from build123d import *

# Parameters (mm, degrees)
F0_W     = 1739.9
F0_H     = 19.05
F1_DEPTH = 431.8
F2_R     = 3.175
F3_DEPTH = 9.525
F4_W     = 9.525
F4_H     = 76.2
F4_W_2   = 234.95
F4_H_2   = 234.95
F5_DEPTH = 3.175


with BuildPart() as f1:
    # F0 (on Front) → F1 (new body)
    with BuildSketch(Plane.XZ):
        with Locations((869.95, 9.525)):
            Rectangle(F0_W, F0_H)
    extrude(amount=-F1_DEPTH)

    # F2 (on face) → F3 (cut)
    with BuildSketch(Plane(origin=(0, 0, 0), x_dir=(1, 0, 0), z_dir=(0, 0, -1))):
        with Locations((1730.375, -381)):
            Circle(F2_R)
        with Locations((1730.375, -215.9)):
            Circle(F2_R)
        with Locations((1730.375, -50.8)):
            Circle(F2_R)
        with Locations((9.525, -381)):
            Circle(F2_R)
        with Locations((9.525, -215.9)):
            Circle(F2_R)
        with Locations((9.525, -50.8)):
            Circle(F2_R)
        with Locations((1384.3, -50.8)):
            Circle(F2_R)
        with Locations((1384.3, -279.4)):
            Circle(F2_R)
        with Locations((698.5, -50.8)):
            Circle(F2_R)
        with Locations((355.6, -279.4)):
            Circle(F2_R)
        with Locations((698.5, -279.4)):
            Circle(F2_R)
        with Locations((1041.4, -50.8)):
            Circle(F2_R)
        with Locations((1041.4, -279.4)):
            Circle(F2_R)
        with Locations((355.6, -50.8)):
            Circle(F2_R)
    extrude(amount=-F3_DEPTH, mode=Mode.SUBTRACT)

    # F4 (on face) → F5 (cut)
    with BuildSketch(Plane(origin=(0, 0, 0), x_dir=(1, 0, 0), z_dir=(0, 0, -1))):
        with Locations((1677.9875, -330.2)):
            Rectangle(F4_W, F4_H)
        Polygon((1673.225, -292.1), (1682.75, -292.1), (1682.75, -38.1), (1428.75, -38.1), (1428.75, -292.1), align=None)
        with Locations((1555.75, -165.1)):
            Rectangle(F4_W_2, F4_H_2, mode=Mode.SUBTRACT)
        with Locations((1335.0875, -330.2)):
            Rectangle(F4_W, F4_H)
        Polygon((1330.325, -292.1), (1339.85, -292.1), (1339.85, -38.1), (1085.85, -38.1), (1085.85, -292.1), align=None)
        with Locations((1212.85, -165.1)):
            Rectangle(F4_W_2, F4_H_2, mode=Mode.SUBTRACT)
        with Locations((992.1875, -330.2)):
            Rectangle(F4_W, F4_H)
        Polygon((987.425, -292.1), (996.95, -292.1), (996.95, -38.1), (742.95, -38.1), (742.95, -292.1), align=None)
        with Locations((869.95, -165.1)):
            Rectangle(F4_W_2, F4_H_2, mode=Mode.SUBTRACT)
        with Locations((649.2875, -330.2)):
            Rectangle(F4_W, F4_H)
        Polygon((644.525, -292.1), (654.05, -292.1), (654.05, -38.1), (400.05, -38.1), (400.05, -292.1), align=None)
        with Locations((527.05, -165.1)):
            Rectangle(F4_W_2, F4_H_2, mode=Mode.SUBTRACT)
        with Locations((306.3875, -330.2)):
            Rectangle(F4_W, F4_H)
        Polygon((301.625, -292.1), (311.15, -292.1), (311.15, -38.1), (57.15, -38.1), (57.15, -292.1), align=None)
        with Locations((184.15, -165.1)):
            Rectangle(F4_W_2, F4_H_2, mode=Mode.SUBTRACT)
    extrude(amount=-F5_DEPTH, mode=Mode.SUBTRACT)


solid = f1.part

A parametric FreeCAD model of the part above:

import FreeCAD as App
import Part
import Sketcher
Q = App.Units.Quantity


def add_polygon(sketch, points):
    """Adds a closed chain of lines whose ends are joined by coincident constraints."""
    first, n = sketch.GeometryCount, len(points)
    for a, b in zip(points, points[1:] + points[:1]):
        sketch.addGeometry(Part.LineSegment(App.Vector(*a, 0), App.Vector(*b, 0)), False)
    for i in range(n):
        sketch.addConstraint(Sketcher.Constraint("Coincident", first + i, 2, first + (i + 1) % n, 1))

doc = App.newDocument("Part")
body = doc.addObject("PartDesign::Body", "Body")

# Sketch on XZ plane
sketch1 = body.newObject("Sketcher::SketchObject", "Sketch")
sketch1.AttachmentSupport = (doc.getObject("XZ_Plane"), [""])
sketch1.MapMode = "FlatFace"
add_polygon(sketch1, [(0, 19), (0, 0), (1740, 0), (1740, 19)])  # lines 0-3
sketch1.addConstraint([
    Sketcher.Constraint("Vertical", 0),
    Sketcher.Constraint("Horizontal", 1),
    Sketcher.Constraint("Vertical", 2),
    Sketcher.Constraint("Horizontal", 3),
    Sketcher.Constraint("Coincident", 0, 2, -1, 1),
    Sketcher.Constraint("DistanceX", 1, 1, 1, 2, Q("68.5 in")),
    Sketcher.Constraint("DistanceY", 0, 2, 0, 1, Q("0.75 in")),
])
pad1 = body.newObject("PartDesign::Pad", "Pad")
pad1.Profile = sketch1
pad1.Length = Q("17 in")
pad1.Reversed = True

# Sketch on XY plane
sketch2 = body.newObject("Sketcher::SketchObject", "Sketch001")
sketch2.AttachmentSupport = (doc.getObject("XY_Plane"), [""])
sketch2.MapMode = "FlatFace"
sketch2.addGeometry([
    Part.Circle(App.Vector(1730.4, 381, 0), App.Vector(0, 0, 1), 3.2),  # 0
    Part.Circle(App.Vector(1730.4, 215.9, 0), App.Vector(0, 0, 1), 3.2),  # 1
    Part.Circle(App.Vector(1730.4, 50.8, 0), App.Vector(0, 0, 1), 3.2),  # 2
    Part.Circle(App.Vector(9.5, 381, 0), App.Vector(0, 0, 1), 3.2),  # 3
    Part.Circle(App.Vector(9.5, 215.9, 0), App.Vector(0, 0, 1), 3.2),  # 4
    Part.Circle(App.Vector(9.5, 50.8, 0), App.Vector(0, 0, 1), 3.2),  # 5
    Part.Circle(App.Vector(1384.3, 50.8, 0), App.Vector(0, 0, 1), 3.2),  # 6
    Part.Circle(App.Vector(1384.3, 279.4, 0), App.Vector(0, 0, 1), 3.2),  # 7
    Part.Circle(App.Vector(698.5, 50.8, 0), App.Vector(0, 0, 1), 3.2),  # 8
    Part.Circle(App.Vector(355.6, 279.4, 0), App.Vector(0, 0, 1), 3.2),  # 9
    Part.Circle(App.Vector(698.5, 279.4, 0), App.Vector(0, 0, 1), 3.2),  # 10
    Part.Circle(App.Vector(1041.4, 50.8, 0), App.Vector(0, 0, 1), 3.2),  # 11
    Part.Circle(App.Vector(1041.4, 279.4, 0), App.Vector(0, 0, 1), 3.2),  # 12
    Part.Circle(App.Vector(355.6, 50.8, 0), App.Vector(0, 0, 1), 3.2),  # 13
], False)
sketch2.addConstraint([
    Sketcher.Constraint("Equal", 0, 1),
    Sketcher.Constraint("Equal", 1, 2),
    Sketcher.Constraint("Equal", 2, 3),
    Sketcher.Constraint("Equal", 3, 4),
    Sketcher.Constraint("Equal", 4, 5),
    Sketcher.Constraint("Equal", 5, 6),
    Sketcher.Constraint("Equal", 6, 7),
    Sketcher.Constraint("Equal", 7, 8),
    Sketcher.Constraint("Equal", 8, 9),
    Sketcher.Constraint("Equal", 9, 10),
    Sketcher.Constraint("Equal", 10, 11),
    Sketcher.Constraint("Equal", 11, 12),
    Sketcher.Constraint("Equal", 12, 13),
    Sketcher.Constraint("Horizontal", 0, 3, 3, 3),
    Sketcher.Constraint("Horizontal", 1, 3, 4, 3),
    Sketcher.Constraint("Horizontal", 2, 3, 5, 3),
    Sketcher.Constraint("Horizontal", 5, 3, 6, 3),
    Sketcher.Constraint("Horizontal", 6, 3, 8, 3),
    Sketcher.Constraint("Horizontal", 7, 3, 9, 3),
    Sketcher.Constraint("Horizontal", 9, 3, 10, 3),
    Sketcher.Constraint("Horizontal", 8, 3, 11, 3),
    Sketcher.Constraint("Horizontal", 10, 3, 12, 3),
    Sketcher.Constraint("Horizontal", 11, 3, 13, 3),
    Sketcher.Constraint("Vertical", 0, 3, 1, 3),
    Sketcher.Constraint("Vertical", 1, 3, 2, 3),
    Sketcher.Constraint("Vertical", 3, 3, 4, 3),
    Sketcher.Constraint("Vertical", 4, 3, 5, 3),
    Sketcher.Constraint("Vertical", 6, 3, 7, 3),
    Sketcher.Constraint("Vertical", 8, 3, 10, 3),
    Sketcher.Constraint("Vertical", 11, 3, 12, 3),
    Sketcher.Constraint("Vertical", 9, 3, 13, 3),
    Sketcher.Constraint("Diameter", 0, Q("0.25 in")),
    Sketcher.Constraint("DistanceY", -1, 1, 0, 3, Q("15 in")),
    Sketcher.Constraint("DistanceY", -1, 1, 2, 3, Q("2 in")),
    Sketcher.Constraint("DistanceY", -1, 1, 7, 3, Q("11 in")),
    Sketcher.Constraint("DistanceX", -1, 1, 9, 3, Q("14 in")),
    Sketcher.Constraint("DistanceX", -1, 1, 11, 3, Q("41 in")),
    Sketcher.Constraint("DistanceX", 8, 3, 6, 3, Q("27 in")),
    Sketcher.Constraint("DistanceY", -1, 1, 1, 3, Q("8.5 in")),
    Sketcher.Constraint("DistanceX", -1, 1, 6, 3, Q("54.5 in")),
    Sketcher.Constraint("DistanceX", 3, 3, 0, 3, Q("67.75 in")),
    Sketcher.Constraint("DistanceX", -1, 1, 0, 3, Q("68.125 in")),
])
pocket1 = body.newObject("PartDesign::Pocket", "Pocket")
pocket1.Profile = sketch2
pocket1.Length = Q("0.375 in")
pocket1.Reversed = True

# Sketch on XY plane
sketch3 = body.newObject("Sketcher::SketchObject", "Sketch002")
sketch3.AttachmentSupport = (doc.getObject("XY_Plane"), [""])
sketch3.MapMode = "FlatFace"
add_polygon(sketch3, [(1673, 292), (1673, 368), (1683, 368), (1683, 38), (1429, 38), (1429, 292)])  # lines 0-5
add_polygon(sketch3, [(1673, 283), (1438, 283), (1438, 48), (1673, 48)])  # lines 6-9
add_polygon(sketch3, [(1330, 292), (1330, 368), (1340, 368), (1340, 38), (1086, 38), (1086, 292)])  # lines 10-15
add_polygon(sketch3, [(1330, 283), (1095, 283), (1095, 48), (1330, 48)])  # lines 16-19
add_polygon(sketch3, [(987, 292), (987, 368), (997, 368), (997, 38), (743, 38), (743, 292)])  # lines 20-25
add_polygon(sketch3, [(987, 283), (752, 283), (752, 48), (987, 48)])  # lines 26-29
add_polygon(sketch3, [(645, 292), (645, 368), (654, 368), (654, 38), (400, 38), (400, 292)])  # lines 30-35
add_polygon(sketch3, [(645, 283), (410, 283), (410, 48), (645, 48)])  # lines 36-39
add_polygon(sketch3, [(302, 292), (302, 368), (311, 368), (311, 38), (57, 38), (57, 292)])  # lines 40-45
add_polygon(sketch3, [(302, 283), (67, 283), (67, 48), (302, 48)])  # lines 46-49
sketch3.addConstraint([
    Sketcher.Constraint("Vertical", 0),
    Sketcher.Constraint("Horizontal", 1),
    Sketcher.Constraint("Vertical", 2),
    Sketcher.Constraint("Horizontal", 3),
    Sketcher.Constraint("Vertical", 4),
    Sketcher.Constraint("Horizontal", 5),
    Sketcher.Constraint("Horizontal", 6),
    Sketcher.Constraint("Vertical", 7),
    Sketcher.Constraint("Horizontal", 8),
    Sketcher.Constraint("Vertical", 9),
    Sketcher.Constraint("Vertical", 10),
    Sketcher.Constraint("Horizontal", 11),
    Sketcher.Constraint("Vertical", 12),
    Sketcher.Constraint("Horizontal", 13),
    Sketcher.Constraint("Vertical", 14),
    Sketcher.Constraint("Horizontal", 15),
    Sketcher.Constraint("Horizontal", 16),
    Sketcher.Constraint("Vertical", 17),
    Sketcher.Constraint("Horizontal", 18),
    Sketcher.Constraint("Vertical", 19),
    Sketcher.Constraint("Vertical", 20),
    Sketcher.Constraint("Horizontal", 21),
    Sketcher.Constraint("Vertical", 22),
    Sketcher.Constraint("Horizontal", 23),
    Sketcher.Constraint("Vertical", 24),
    Sketcher.Constraint("Horizontal", 25),
    Sketcher.Constraint("Horizontal", 26),
    Sketcher.Constraint("Vertical", 27),
    Sketcher.Constraint("Horizontal", 28),
    Sketcher.Constraint("Vertical", 29),
    Sketcher.Constraint("Vertical", 30),
    Sketcher.Constraint("Horizontal", 31),
    Sketcher.Constraint("Vertical", 32),
    Sketcher.Constraint("Horizontal", 33),
    Sketcher.Constraint("Vertical", 34),
    Sketcher.Constraint("Horizontal", 35),
    Sketcher.Constraint("Horizontal", 36),
    Sketcher.Constraint("Vertical", 37),
    Sketcher.Constraint("Horizontal", 38),
    Sketcher.Constraint("Vertical", 39),
    Sketcher.Constraint("Vertical", 40),
    Sketcher.Constraint("Horizontal", 41),
    Sketcher.Constraint("Vertical", 42),
    Sketcher.Constraint("Horizontal", 43),
    Sketcher.Constraint("Vertical", 44),
    Sketcher.Constraint("Horizontal", 45),
    Sketcher.Constraint("Horizontal", 46),
    Sketcher.Constraint("Vertical", 47),
    Sketcher.Constraint("Horizontal", 48),
    Sketcher.Constraint("Vertical", 49),
    Sketcher.Constraint("Horizontal", 1, 2, 10, 2),
    Sketcher.Constraint("Horizontal", 3, 2, 12, 2),
    Sketcher.Constraint("Horizontal", 5, 2, 14, 2),
    Sketcher.Constraint("Horizontal", 9, 2, 16, 2),
    Sketcher.Constraint("Horizontal", 8, 2, 17, 2),
    Sketcher.Constraint("Horizontal", 11, 2, 20, 2),
    Sketcher.Constraint("Horizontal", 13, 2, 22, 2),
    Sketcher.Constraint("Horizontal", 15, 2, 24, 2),
    Sketcher.Constraint("Horizontal", 19, 2, 26, 2),
    Sketcher.Constraint("Horizontal", 18, 2, 27, 2),
    Sketcher.Constraint("Horizontal", 21, 2, 30, 2),
    Sketcher.Constraint("Horizontal", 23, 2, 32, 2),
    Sketcher.Constraint("Horizontal", 25, 2, 34, 2),
    Sketcher.Constraint("Horizontal", 29, 2, 36, 2),
    Sketcher.Constraint("Horizontal", 28, 2, 37, 2),
    Sketcher.Constraint("Horizontal", 31, 2, 40, 2),
    Sketcher.Constraint("Horizontal", 33, 2, 42, 2),
    Sketcher.Constraint("Horizontal", 35, 2, 44, 2),
    Sketcher.Constraint("Horizontal", 39, 2, 46, 2),
    Sketcher.Constraint("Horizontal", 38, 2, 47, 2),
    Sketcher.Constraint("Vertical", 5, 2, 8, 2),
    Sketcher.Constraint("Vertical", 15, 2, 18, 2),
    Sketcher.Constraint("Vertical", 25, 2, 28, 2),
    Sketcher.Constraint("Vertical", 35, 2, 38, 2),
    Sketcher.Constraint("Vertical", 45, 2, 48, 2),
    Sketcher.Constraint("Equal", 1, 11),
    Sketcher.Constraint("Equal", 3, 13),
    Sketcher.Constraint("Equal", 8, 16),
    Sketcher.Constraint("Equal", 11, 21),
    Sketcher.Constraint("Equal", 13, 23),
    Sketcher.Constraint("Equal", 18, 26),
    Sketcher.Constraint("Equal", 21, 31),
    Sketcher.Constraint("Equal", 23, 33),
    Sketcher.Constraint("Equal", 28, 36),
    Sketcher.Constraint("Equal", 31, 41),
    Sketcher.Constraint("Equal", 33, 43),
    Sketcher.Constraint("Equal", 38, 46),
    Sketcher.Constraint("Equal", 43, 4),
    Sketcher.Constraint("Equal", 48, 7),
    Sketcher.Constraint("DistanceX", 3, 2, 3, 1, Q("10 in")),
    Sketcher.Constraint("DistanceY", 0, 1, 0, 2, Q("3 in")),
    Sketcher.Constraint("DistanceX", 6, 2, 6, 1, Q("9.25 in")),
    Sketcher.Constraint("DistanceY", -1, 1, 0, 2, Q("14.5 in")),
    Sketcher.Constraint("DistanceX", 10, 2, 0, 2, Q("13.5 in")),
    Sketcher.Constraint("DistanceX", 20, 2, 10, 2, Q("13.5 in")),
    Sketcher.Constraint("DistanceX", 30, 2, 20, 2, Q("13.5 in")),
    Sketcher.Constraint("DistanceX", 40, 2, 30, 2, Q("13.5 in")),
    Sketcher.Constraint("DistanceX", 1, 1, 1, 2, Q("0.375 in")),
    Sketcher.Constraint("DistanceX", -1, 1, 1, 2, Q("66.25 in")),
    Sketcher.Constraint("DistanceY", -1, 1, 6, 2, Q("11.125 in")),
])
pocket2 = body.newObject("PartDesign::Pocket", "Pocket001")
pocket2.Profile = sketch3
pocket2.Length = Q("0.125 in")
pocket2.Reversed = True

doc.recompute()
